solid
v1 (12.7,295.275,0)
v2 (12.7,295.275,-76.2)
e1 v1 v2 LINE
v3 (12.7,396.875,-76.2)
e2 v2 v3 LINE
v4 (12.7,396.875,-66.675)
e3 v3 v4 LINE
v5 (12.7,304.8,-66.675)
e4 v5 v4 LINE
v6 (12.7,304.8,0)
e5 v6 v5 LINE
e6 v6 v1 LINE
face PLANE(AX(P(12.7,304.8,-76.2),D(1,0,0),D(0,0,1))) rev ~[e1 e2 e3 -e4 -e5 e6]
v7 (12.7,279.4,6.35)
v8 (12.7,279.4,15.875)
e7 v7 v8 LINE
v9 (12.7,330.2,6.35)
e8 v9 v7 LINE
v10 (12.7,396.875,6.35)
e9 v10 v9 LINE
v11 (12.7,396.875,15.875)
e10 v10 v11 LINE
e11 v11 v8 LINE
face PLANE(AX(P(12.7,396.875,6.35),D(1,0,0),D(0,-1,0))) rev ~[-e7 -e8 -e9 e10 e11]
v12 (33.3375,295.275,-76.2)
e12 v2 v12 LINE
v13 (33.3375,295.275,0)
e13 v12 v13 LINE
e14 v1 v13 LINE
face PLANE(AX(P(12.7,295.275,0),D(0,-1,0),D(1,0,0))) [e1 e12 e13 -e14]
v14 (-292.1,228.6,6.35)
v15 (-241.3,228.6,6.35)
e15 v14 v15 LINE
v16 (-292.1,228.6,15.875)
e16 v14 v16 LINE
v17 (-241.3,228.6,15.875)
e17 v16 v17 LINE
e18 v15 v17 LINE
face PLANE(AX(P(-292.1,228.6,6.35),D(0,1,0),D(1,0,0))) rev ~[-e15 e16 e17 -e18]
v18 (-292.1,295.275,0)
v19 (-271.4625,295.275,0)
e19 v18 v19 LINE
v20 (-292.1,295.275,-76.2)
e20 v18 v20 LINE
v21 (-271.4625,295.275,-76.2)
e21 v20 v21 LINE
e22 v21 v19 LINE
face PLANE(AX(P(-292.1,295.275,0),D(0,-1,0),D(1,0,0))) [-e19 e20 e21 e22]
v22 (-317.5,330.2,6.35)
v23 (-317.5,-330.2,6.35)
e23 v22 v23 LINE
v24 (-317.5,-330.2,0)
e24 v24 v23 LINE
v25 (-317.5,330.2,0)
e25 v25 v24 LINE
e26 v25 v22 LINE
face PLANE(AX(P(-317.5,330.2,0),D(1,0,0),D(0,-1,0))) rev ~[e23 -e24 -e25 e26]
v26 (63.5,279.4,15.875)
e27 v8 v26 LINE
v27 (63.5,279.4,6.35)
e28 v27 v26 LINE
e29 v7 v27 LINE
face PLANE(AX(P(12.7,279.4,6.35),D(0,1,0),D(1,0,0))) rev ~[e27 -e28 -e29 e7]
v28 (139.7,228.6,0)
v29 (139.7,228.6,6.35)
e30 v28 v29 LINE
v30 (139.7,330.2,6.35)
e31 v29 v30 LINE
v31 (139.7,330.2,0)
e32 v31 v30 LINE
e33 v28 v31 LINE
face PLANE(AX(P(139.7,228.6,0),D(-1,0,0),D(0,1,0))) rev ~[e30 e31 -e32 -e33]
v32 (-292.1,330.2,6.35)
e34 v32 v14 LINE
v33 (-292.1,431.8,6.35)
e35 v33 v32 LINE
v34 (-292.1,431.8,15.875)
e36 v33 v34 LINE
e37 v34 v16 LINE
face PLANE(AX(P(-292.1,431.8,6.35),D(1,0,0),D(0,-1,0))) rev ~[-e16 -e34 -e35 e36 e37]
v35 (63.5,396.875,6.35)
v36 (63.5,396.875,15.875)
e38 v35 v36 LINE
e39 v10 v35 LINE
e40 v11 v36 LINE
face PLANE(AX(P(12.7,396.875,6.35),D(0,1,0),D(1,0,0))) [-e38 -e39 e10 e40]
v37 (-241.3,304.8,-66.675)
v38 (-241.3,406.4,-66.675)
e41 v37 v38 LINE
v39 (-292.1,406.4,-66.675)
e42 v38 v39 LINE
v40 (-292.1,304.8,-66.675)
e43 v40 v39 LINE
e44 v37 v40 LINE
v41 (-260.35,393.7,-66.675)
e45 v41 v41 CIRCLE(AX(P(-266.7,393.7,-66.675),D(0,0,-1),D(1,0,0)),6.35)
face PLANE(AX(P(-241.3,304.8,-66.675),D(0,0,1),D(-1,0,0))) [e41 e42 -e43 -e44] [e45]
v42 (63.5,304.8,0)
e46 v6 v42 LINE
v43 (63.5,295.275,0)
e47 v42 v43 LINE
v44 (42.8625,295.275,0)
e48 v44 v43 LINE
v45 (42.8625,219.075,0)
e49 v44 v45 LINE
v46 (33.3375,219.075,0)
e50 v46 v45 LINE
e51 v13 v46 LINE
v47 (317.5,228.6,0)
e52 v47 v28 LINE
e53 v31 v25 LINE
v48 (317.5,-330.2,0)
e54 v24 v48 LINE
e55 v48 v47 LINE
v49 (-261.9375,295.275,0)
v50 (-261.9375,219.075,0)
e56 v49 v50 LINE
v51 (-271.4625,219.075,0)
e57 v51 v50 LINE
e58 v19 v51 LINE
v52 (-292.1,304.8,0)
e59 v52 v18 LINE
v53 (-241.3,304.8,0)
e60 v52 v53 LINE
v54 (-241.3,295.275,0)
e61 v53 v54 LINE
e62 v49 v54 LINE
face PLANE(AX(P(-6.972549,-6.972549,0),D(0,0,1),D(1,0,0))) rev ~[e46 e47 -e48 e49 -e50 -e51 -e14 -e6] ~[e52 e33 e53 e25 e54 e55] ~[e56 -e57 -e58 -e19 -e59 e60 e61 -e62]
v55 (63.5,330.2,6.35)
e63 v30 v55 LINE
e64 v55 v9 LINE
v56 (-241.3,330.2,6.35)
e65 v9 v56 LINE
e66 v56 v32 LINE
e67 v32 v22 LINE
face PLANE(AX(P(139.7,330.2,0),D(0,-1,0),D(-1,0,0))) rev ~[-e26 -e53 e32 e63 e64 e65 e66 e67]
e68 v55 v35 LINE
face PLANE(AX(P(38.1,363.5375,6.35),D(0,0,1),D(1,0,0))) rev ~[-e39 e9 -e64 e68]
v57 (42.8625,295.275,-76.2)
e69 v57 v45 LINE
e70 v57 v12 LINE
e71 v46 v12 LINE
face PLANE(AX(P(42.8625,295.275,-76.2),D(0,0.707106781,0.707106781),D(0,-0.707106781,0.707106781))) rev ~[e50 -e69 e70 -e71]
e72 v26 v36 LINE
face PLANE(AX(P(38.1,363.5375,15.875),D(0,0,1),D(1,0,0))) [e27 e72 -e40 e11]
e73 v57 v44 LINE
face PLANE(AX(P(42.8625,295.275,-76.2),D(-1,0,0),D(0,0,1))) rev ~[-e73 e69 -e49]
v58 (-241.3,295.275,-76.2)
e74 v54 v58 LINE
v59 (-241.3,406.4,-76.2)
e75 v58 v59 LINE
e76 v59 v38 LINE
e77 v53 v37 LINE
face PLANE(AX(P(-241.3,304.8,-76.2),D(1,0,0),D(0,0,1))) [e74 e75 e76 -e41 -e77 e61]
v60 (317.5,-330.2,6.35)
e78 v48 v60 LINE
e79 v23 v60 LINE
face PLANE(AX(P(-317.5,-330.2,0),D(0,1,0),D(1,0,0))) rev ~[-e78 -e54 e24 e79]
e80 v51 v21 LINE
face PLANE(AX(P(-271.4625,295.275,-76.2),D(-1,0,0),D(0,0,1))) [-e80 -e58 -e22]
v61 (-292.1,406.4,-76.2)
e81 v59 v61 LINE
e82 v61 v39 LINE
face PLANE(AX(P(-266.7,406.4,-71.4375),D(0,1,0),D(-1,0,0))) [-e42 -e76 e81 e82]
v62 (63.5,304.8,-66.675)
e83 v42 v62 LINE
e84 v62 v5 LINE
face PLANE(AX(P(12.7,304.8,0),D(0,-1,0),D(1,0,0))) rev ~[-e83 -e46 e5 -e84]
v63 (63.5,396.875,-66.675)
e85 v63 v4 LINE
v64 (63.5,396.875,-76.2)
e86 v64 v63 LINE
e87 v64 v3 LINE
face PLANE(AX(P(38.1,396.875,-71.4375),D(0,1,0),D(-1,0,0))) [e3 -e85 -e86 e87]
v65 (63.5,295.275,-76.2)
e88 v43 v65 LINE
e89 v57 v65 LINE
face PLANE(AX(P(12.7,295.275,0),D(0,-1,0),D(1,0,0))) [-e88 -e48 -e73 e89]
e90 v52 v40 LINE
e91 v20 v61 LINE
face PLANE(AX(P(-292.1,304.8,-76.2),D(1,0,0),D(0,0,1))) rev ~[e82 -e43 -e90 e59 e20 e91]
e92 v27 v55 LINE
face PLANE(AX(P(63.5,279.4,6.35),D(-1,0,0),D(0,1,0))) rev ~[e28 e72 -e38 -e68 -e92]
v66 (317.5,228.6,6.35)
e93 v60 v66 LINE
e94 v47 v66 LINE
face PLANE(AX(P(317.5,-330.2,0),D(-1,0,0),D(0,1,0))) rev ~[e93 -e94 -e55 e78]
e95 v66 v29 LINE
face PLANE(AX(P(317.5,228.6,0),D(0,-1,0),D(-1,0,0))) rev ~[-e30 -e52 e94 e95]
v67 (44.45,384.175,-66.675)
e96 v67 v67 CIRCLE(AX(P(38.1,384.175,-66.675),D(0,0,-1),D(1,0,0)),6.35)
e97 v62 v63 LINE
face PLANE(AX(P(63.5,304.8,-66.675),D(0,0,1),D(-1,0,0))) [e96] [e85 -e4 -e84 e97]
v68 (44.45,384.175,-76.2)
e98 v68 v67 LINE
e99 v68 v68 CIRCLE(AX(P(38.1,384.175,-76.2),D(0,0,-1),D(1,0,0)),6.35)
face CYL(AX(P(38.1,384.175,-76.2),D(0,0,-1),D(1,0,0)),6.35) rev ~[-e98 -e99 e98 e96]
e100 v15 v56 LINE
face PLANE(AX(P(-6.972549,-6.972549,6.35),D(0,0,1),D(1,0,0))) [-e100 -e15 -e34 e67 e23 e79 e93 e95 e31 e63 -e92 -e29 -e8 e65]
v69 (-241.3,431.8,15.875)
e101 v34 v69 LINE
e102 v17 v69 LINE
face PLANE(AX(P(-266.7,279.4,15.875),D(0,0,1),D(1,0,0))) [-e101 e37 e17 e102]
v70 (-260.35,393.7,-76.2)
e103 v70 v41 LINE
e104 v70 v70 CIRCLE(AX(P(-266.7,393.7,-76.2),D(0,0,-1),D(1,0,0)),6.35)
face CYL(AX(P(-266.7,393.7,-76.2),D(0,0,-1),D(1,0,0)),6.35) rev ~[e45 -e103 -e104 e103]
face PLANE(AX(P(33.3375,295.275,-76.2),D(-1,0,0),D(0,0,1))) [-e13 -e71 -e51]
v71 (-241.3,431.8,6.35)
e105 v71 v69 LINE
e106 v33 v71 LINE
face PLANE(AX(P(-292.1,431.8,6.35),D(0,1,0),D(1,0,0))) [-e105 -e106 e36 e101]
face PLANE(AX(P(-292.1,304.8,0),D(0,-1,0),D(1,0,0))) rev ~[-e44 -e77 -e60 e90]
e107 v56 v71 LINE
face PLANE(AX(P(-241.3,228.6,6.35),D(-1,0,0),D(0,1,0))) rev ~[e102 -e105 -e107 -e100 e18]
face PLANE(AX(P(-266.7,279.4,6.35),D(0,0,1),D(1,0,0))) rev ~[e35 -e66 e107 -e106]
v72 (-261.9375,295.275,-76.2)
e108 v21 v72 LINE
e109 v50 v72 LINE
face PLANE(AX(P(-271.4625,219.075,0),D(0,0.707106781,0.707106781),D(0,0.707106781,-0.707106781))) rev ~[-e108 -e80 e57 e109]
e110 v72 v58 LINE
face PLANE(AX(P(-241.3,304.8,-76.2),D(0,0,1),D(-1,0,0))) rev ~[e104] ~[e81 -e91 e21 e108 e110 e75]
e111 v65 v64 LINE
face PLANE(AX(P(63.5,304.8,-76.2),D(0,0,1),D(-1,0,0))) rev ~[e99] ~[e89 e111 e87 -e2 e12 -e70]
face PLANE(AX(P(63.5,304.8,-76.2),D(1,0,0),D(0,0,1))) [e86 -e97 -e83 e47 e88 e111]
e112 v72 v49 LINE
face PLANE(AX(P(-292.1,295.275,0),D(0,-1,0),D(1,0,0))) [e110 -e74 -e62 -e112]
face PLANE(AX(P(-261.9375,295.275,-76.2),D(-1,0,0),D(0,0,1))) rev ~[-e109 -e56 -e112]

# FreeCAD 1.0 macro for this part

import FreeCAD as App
import Part
import Sketcher
from FreeCAD import Vector
Q = App.Units.Quantity

doc = App.newDocument("Part")
body = doc.addObject("PartDesign::Body", "Body")

sketch1 = doc.addObject("Sketcher::SketchObject", "Sketch")
body.addObject(sketch1)
sketch1.AttachmentSupport = (doc.XY_Plane, [""])
sketch1.MapMode = "FlatFace"
sketch1.addGeometry([
    Part.LineSegment(Vector(-318, -330, 0), Vector(318, -330, 0)),
    Part.LineSegment(Vector(318, -330, 0), Vector(318, 229, 0)),
    Part.LineSegment(Vector(318, 229, 0), Vector(140, 229, 0)),
    Part.LineSegment(Vector(140, 229, 0), Vector(140, 330, 0)),
    Part.LineSegment(Vector(140, 330, 0), Vector(-318, 330, 0)),
    Part.LineSegment(Vector(-318, 330, 0), Vector(-318, -330, 0)),
], False)
sketch1.addConstraint([
    Sketcher.Constraint("Coincident", 0, 2, 1, 1),
    Sketcher.Constraint("Coincident", 1, 2, 2, 1),
    Sketcher.Constraint("Coincident", 2, 2, 3, 1),
    Sketcher.Constraint("Coincident", 3, 2, 4, 1),
    Sketcher.Constraint("Coincident", 4, 2, 5, 1),
    Sketcher.Constraint("Coincident", 5, 2, 0, 1),
    Sketcher.Constraint("Horizontal", 0),
    Sketcher.Constraint("Vertical", 1),
    Sketcher.Constraint("Horizontal", 2),
    Sketcher.Constraint("Vertical", 3),
    Sketcher.Constraint("Horizontal", 4),
    Sketcher.Constraint("Vertical", 5),
    Sketcher.Constraint("Symmetric", 0, 2, 4, 2, -1, 1),
    Sketcher.Constraint("DistanceX", 0, 1, 0, 2, Q("25 in")),
    Sketcher.Constraint("DistanceX", 2, 2, 2, 1, Q("7 in")),
    Sketcher.Constraint("DistanceY", 1, 1, 1, 2, Q("22 in")),
    Sketcher.Constraint("DistanceY", 3, 1, 3, 2, Q("4 in")),
])
pad1 = doc.addObject("PartDesign::Pad", "Pad")
body.addObject(pad1)
pad1.Profile = sketch1
pad1.Length = Q("0.25 in")

sketch2 = doc.addObject("Sketcher::SketchObject", "Sketch001")
body.addObject(sketch2)
sketch2.AttachmentSupport = (doc.XY_Plane, [""])
sketch2.MapMode = "FlatFace"
sketch2.AttachmentOffset = App.Placement(Vector(0, 0, 0.25 * 25.4), App.Rotation())
sketch2.addGeometry([
    Part.LineSegment(Vector(-292, 229, 0), Vector(-241, 229, 0)),
    Part.LineSegment(Vector(-241, 229, 0), Vector(-241, 432, 0)),
    Part.LineSegment(Vector(-241, 432, 0), Vector(-292, 432, 0)),
    Part.LineSegment(Vector(-292, 432, 0), Vector(-292, 229, 0)),
], False)
sketch2.addConstraint([
    Sketcher.Constraint("Coincident", 0, 2, 1, 1),
    Sketcher.Constraint("Coincident", 1, 2, 2, 1),
    Sketcher.Constraint("Coincident", 2, 2, 3, 1),
    Sketcher.Constraint("Coincident", 3, 2, 0, 1),
    Sketcher.Constraint("Horizontal", 0),
    Sketcher.Constraint("Vertical", 1),
    Sketcher.Constraint("Horizontal", 2),
    Sketcher.Constraint("Vertical", 3),
    Sketcher.Constraint("DistanceX", 0, 1, 0, 2, Q("2 in")),
    Sketcher.Constraint("DistanceY", 1, 1, 1, 2, Q("8 in")),
    Sketcher.Constraint("DistanceY", -1, 1, 0, 2, Q("9 in")),
    Sketcher.Constraint("DistanceX", 0, 2, -1, 1, Q("9.5 in")),
])
pad2 = doc.addObject("PartDesign::Pad", "Pad001")
body.addObject(pad2)
pad2.Profile = sketch2
pad2.Length = Q("0.375 in")

sketch3 = doc.addObject("Sketcher::SketchObject", "Sketch002")
body.addObject(sketch3)
sketch3.AttachmentSupport = (doc.XY_Plane, [""])
sketch3.MapMode = "FlatFace"
sketch3.addGeometry([
    Part.LineSegment(Vector(13, 295, 0), Vector(13, 305, 0)),
    Part.LineSegment(Vector(13, 305, 0), Vector(64, 305, 0)),
    Part.LineSegment(Vector(64, 305, 0), Vector(64, 295, 0)),
    Part.LineSegment(Vector(64, 295, 0), Vector(13, 295, 0)),
], False)
sketch3.addConstraint([
    Sketcher.Constraint("Coincident", 0, 2, 1, 1),
    Sketcher.Constraint("Coincident", 1, 2, 2, 1),
    Sketcher.Constraint("Coincident", 2, 2, 3, 1),
    Sketcher.Constraint("Coincident", 3, 2, 0, 1),
    Sketcher.Constraint("Vertical", 0),
    Sketcher.Constraint("Horizontal", 1),
    Sketcher.Constraint("Vertical", 2),
    Sketcher.Constraint("Horizontal", 3),
    Sketcher.Constraint("DistanceX", 1, 1, 1, 2, Q("2 in")),
    Sketcher.Constraint("DistanceY", -1, 1, 0, 2, Q("12 in")),
    Sketcher.Constraint("DistanceX", -1, 1, 0, 2, Q("0.5 in")),
    Sketcher.Constraint("DistanceY", 0, 1, 0, 2, Q("0.375 in")),
])
pad3 = doc.addObject("PartDesign::Pad", "Pad002")
body.addObject(pad3)
pad3.Profile = sketch3
pad3.Length = Q("3 in")
pad3.Reversed = True

sketch4 = doc.addObject("Sketcher::SketchObject", "Sketch003")
body.addObject(sketch4)
sketch4.AttachmentSupport = (doc.XZ_Plane, [""])
sketch4.MapMode = "FlatFace"
sketch4.AttachmentOffset = App.Placement(Vector(0, 0, -12 * 25.4), App.Rotation())
sketch4.addGeometry([
    Part.LineSegment(Vector(64, -67, 0), Vector(64, -76, 0)),
    Part.LineSegment(Vector(64, -76, 0), Vector(13, -76, 0)),
    Part.LineSegment(Vector(13, -76, 0), Vector(13, -67, 0)),
    Part.LineSegment(Vector(13, -67, 0), Vector(64, -67, 0)),
], False)
sketch4.addConstraint([
    Sketcher.Constraint("Coincident", 0, 2, 1, 1),
    Sketcher.Constraint("Coincident", 1, 2, 2, 1),
    Sketcher.Constraint("Coincident", 2, 2, 3, 1),
    Sketcher.Constraint("Coincident", 3, 2, 0, 1),
    Sketcher.Constraint("Vertical", 0),
    Sketcher.Constraint("Horizontal", 1),
    Sketcher.Constraint("Vertical", 2),
    Sketcher.Constraint("Horizontal", 3),
    Sketcher.Constraint("DistanceX", 1, 2, 1, 1, Q("2 in")),
    Sketcher.Constraint("DistanceY", 0, 2, -1, 1, Q("3 in")),
    Sketcher.Constraint("DistanceX", -1, 1, 0, 2, Q("2.5 in")),
    Sketcher.Constraint("DistanceY", 0, 2, 0, 1, Q("0.375 in")),
])
pad4 = doc.addObject("PartDesign::Pad", "Pad003")
body.addObject(pad4)
pad4.Profile = sketch4
pad4.Length = Q("3.625 in")
pad4.Reversed = True

sketch5 = doc.addObject("Sketcher::SketchObject", "Sketch004")
body.addObject(sketch5)
sketch5.AttachmentSupport = (doc.XY_Plane, [""])
sketch5.MapMode = "FlatFace"
sketch5.AttachmentOffset = App.Placement(Vector(0, 0, -3 * 25.4), App.Rotation())
sketch5.addGeometry(Part.Circle(Vector(38, 384, 0), Vector(0, 0, 1), 6), False)
sketch5.addConstraint([
    Sketcher.Constraint("Diameter", 0, Q("0.5 in")),
    Sketcher.Constraint("DistanceX", -1, 1, 0, 3, Q("1.5 in")),
    Sketcher.Constraint("DistanceY", -1, 1, 0, 3, Q("15.125 in")),
])
pocket1 = doc.addObject("PartDesign::Pocket", "Pocket")
body.addObject(pocket1)
pocket1.Profile = sketch5
pocket1.Length = Q("1 in")
pocket1.Reversed = True

sketch6 = doc.addObject("Sketcher::SketchObject", "Sketch005")
body.addObject(sketch6)
sketch6.AttachmentSupport = (doc.XY_Plane, [""])
sketch6.MapMode = "FlatFace"
sketch6.AttachmentOffset = App.Placement(Vector(0, 0, 0.25 * 25.4), App.Rotation())
sketch6.addGeometry([
    Part.LineSegment(Vector(13, 397, 0), Vector(13, 279, 0)),
    Part.LineSegment(Vector(13, 279, 0), Vector(64, 279, 0)),
    Part.LineSegment(Vector(64, 279, 0), Vector(64, 397, 0)),
    Part.LineSegment(Vector(64, 397, 0), Vector(13, 397, 0)),
], False)
sketch6.addConstraint([
    Sketcher.Constraint("Coincident", 0, 2, 1, 1),
    Sketcher.Constraint("Coincident", 1, 2, 2, 1),
    Sketcher.Constraint("Coincident", 2, 2, 3, 1),
    Sketcher.Constraint("Coincident", 3, 2, 0, 1),
    Sketcher.Constraint("Vertical", 0),
    Sketcher.Constraint("Horizontal", 1),
    Sketcher.Constraint("Vertical", 2),
    Sketcher.Constraint("Horizontal", 3),
    Sketcher.Constraint("DistanceX", 1, 1, 1, 2, Q("2 in")),
    Sketcher.Constraint("DistanceY", -1, 1, 0, 2, Q("11 in")),
    Sketcher.Constraint("DistanceX", -1, 1, 0, 2, Q("0.5 in")),
    Sketcher.Constraint("DistanceY", 0, 2, 0, 1, Q("4.625 in")),
])
pad5 = doc.addObject("PartDesign::Pad", "Pad004")
body.addObject(pad5)
pad5.Profile = sketch6
pad5.Length = Q("0.375 in")

sketch7 = doc.addObject("Sketcher::SketchObject", "Sketch006")
body.addObject(sketch7)
sketch7.AttachmentSupport = (doc.XZ_Plane, [""])
sketch7.MapMode = "FlatFace"
sketch7.AttachmentOffset = App.Placement(Vector(0, 0, -11.625 * 25.4), App.Rotation())
sketch7.addGeometry([
    Part.LineSegment(Vector(33, 0, 0), Vector(33, -76, 0)),
    Part.LineSegment(Vector(33, -76, 0), Vector(43, -76, 0)),
    Part.LineSegment(Vector(43, -76, 0), Vector(43, 0, 0)),
    Part.LineSegment(Vector(43, 0, 0), Vector(33, 0, 0)),
], False)
sketch7.addConstraint([
    Sketcher.Constraint("Coincident", 0, 2, 1, 1),
    Sketcher.Constraint("Coincident", 1, 2, 2, 1),
    Sketcher.Constraint("Coincident", 2, 2, 3, 1),
    Sketcher.Constraint("Coincident", 3, 2, 0, 1),
    Sketcher.Constraint("Vertical", 0),
    Sketcher.Constraint("Horizontal", 1),
    Sketcher.Constraint("Vertical", 2),
    Sketcher.Constraint("Horizontal", 3),
    Sketcher.Constraint("PointOnObject", 2, 2, -1),
    Sketcher.Constraint("DistanceY", 0, 2, 0, 1, Q("3 in")),
    Sketcher.Constraint("DistanceX", 1, 1, 1, 2, Q("0.375 in")),
    Sketcher.Constraint("DistanceX", -1, 1, 0, 2, Q("1.3125 in")),
])
pad6 = doc.addObject("PartDesign::Pad", "Pad005")
body.addObject(pad6)
pad6.Profile = sketch7
pad6.Length = Q("3 in")

sketch8 = doc.addObject("Sketcher::SketchObject", "Sketch007")
body.addObject(sketch8)
sketch8.AttachmentSupport = (doc.YZ_Plane, [""])
sketch8.MapMode = "FlatFace"
sketch8.AttachmentOffset = App.Placement(Vector(0, 0, 1.6875 * 25.4), App.Rotation())
sketch8.addGeometry([
    Part.LineSegment(Vector(219, -76, 0), Vector(295, -76, 0)),
    Part.LineSegment(Vector(295, -76, 0), Vector(219, 0, 0)),
    Part.LineSegment(Vector(219, 0, 0), Vector(219, -76, 0)),
], False)
sketch8.addConstraint([
    Sketcher.Constraint("Coincident", 0, 2, 1, 1),
    Sketcher.Constraint("Coincident", 1, 2, 2, 1),
    Sketcher.Constraint("Coincident", 2, 2, 0, 1),
    Sketcher.Constraint("Horizontal", 0),
    Sketcher.Constraint("Vertical", 2),
    Sketcher.Constraint("PointOnObject", 1, 2, -1),
    Sketcher.Constraint("Equal", 0, 2),
    Sketcher.Constraint("DistanceX", 0, 1, 0, 2, Q("3 in")),
    Sketcher.Constraint("DistanceX", -1, 1, 0, 2, Q("11.625 in")),
])
pocket2 = doc.addObject("PartDesign::Pocket", "Pocket001")
body.addObject(pocket2)
pocket2.Profile = sketch8
pocket2.Length = Q("1 in")

sketch9 = doc.addObject("Sketcher::SketchObject", "Sketch008")
body.addObject(sketch9)
sketch9.AttachmentSupport = (doc.XY_Plane, [""])
sketch9.MapMode = "FlatFace"
sketch9.addGeometry([
    Part.LineSegment(Vector(-292, 295, 0), Vector(-292, 305, 0)),
    Part.LineSegment(Vector(-292, 305, 0), Vector(-241, 305, 0)),
    Part.LineSegment(Vector(-241, 305, 0), Vector(-241, 295, 0)),
    Part.LineSegment(Vector(-241, 295, 0), Vector(-292, 295, 0)),
], False)
sketch9.addConstraint([
    Sketcher.Constraint("Coincident", 0, 2, 1, 1),
    Sketcher.Constraint("Coincident", 1, 2, 2, 1),
    Sketcher.Constraint("Coincident", 2, 2, 3, 1),
    Sketcher.Constraint("Coincident", 3, 2, 0, 1),
    Sketcher.Constraint("Vertical", 0),
    Sketcher.Constraint("Horizontal", 1),
    Sketcher.Constraint("Vertical", 2),
    Sketcher.Constraint("Horizontal", 3),
    Sketcher.Constraint("DistanceX", 1, 1, 1, 2, Q("2 in")),
    Sketcher.Constraint("DistanceY", -1, 1, 0, 2, Q("12 in")),
    Sketcher.Constraint("DistanceX", 0, 2, -1, 1, Q("11.5 in")),
    Sketcher.Constraint("DistanceY", 0, 1, 0, 2, Q("0.375 in")),
])
pad7 = doc.addObject("PartDesign::Pad", "Pad006")
body.addObject(pad7)
pad7.Profile = sketch9
pad7.Length = Q("3 in")
pad7.Reversed = True

sketch10 = doc.addObject("Sketcher::SketchObject", "Sketch009")
body.addObject(sketch10)
sketch10.AttachmentSupport = (doc.XZ_Plane, [""])
sketch10.MapMode = "FlatFace"
sketch10.AttachmentOffset = App.Placement(Vector(0, 0, -12 * 25.4), App.Rotation())
sketch10.addGeometry([
    Part.LineSegment(Vector(-241, -67, 0), Vector(-241, -76, 0)),
    Part.LineSegment(Vector(-241, -76, 0), Vector(-292, -76, 0)),
    Part.LineSegment(Vector(-292, -76, 0), Vector(-292, -67, 0)),
    Part.LineSegment(Vector(-292, -67, 0), Vector(-241, -67, 0)),
], False)
sketch10.addConstraint([
    Sketcher.Constraint("Coincident", 0, 2, 1, 1),
    Sketcher.Constraint("Coincident", 1, 2, 2, 1),
    Sketcher.Constraint("Coincident", 2, 2, 3, 1),
    Sketcher.Constraint("Coincident", 3, 2, 0, 1),
    Sketcher.Constraint("Vertical", 0),
    Sketcher.Constraint("Horizontal", 1),
    Sketcher.Constraint("Vertical", 2),
    Sketcher.Constraint("Horizontal", 3),
    Sketcher.Constraint("DistanceX", 1, 2, 1, 1, Q("2 in")),
    Sketcher.Constraint("DistanceY", 0, 2, -1, 1, Q("3 in")),
    Sketcher.Constraint("DistanceX", 0, 2, -1, 1, Q("9.5 in")),
    Sketcher.Constraint("DistanceY", 0, 2, 0, 1, Q("0.375 in")),
])
pad8 = doc.addObject("PartDesign::Pad", "Pad007")
body.addObject(pad8)
pad8.Profile = sketch10
pad8.Length = Q("4 in")
pad8.Reversed = True

sketch11 = doc.addObject("Sketcher::SketchObject", "Sketch010")
body.addObject(sketch11)
sketch11.AttachmentSupport = (doc.XY_Plane, [""])
sketch11.MapMode = "FlatFace"
sketch11.AttachmentOffset = App.Placement(Vector(0, 0, -3 * 25.4), App.Rotation())
sketch11.addGeometry(Part.Circle(Vector(-267, 394, 0), Vector(0, 0, 1), 6), False)
sketch11.addConstraint([
    Sketcher.Constraint("Diameter", 0, Q("0.5 in")),
    Sketcher.Constraint("DistanceX", 0, 3, -1, 1, Q("10.5 in")),
    Sketcher.Constraint("DistanceY", -1, 1, 0, 3, Q("15.5 in")),
])
pocket3 = doc.addObject("PartDesign::Pocket", "Pocket002")
body.addObject(pocket3)
pocket3.Profile = sketch11
pocket3.Length = Q("1 in")
pocket3.Reversed = True

sketch12 = doc.addObject("Sketcher::SketchObject", "Sketch011")
body.addObject(sketch12)
sketch12.AttachmentSupport = (doc.XZ_Plane, [""])
sketch12.MapMode = "FlatFace"
sketch12.AttachmentOffset = App.Placement(Vector(0, 0, -11.625 * 25.4), App.Rotation())
sketch12.addGeometry([
    Part.LineSegment(Vector(-271, 0, 0), Vector(-271, -76, 0)),
    Part.LineSegment(Vector(-271, -76, 0), Vector(-262, -76, 0)),
    Part.LineSegment(Vector(-262, -76, 0), Vector(-262, 0, 0)),
    Part.LineSegment(Vector(-262, 0, 0), Vector(-271, 0, 0)),
], False)
sketch12.addConstraint([
    Sketcher.Constraint("Coincident", 0, 2, 1, 1),
    Sketcher.Constraint("Coincident", 1, 2, 2, 1),
    Sketcher.Constraint("Coincident", 2, 2, 3, 1),
    Sketcher.Constraint("Coincident", 3, 2, 0, 1),
    Sketcher.Constraint("Vertical", 0),
    Sketcher.Constraint("Horizontal", 1),
    Sketcher.Constraint("Vertical", 2),
    Sketcher.Constraint("Horizontal", 3),
    Sketcher.Constraint("PointOnObject", 2, 2, -1),
    Sketcher.Constraint("DistanceY", 0, 2, 0, 1, Q("3 in")),
    Sketcher.Constraint("DistanceX", 1, 1, 1, 2, Q("0.375 in")),
    Sketcher.Constraint("DistanceX", 0, 2, -1, 1, Q("10.6875 in")),
])
pad9 = doc.addObject("PartDesign::Pad", "Pad008")
body.addObject(pad9)
pad9.Profile = sketch12
pad9.Length = Q("3 in")

sketch13 = doc.addObject("Sketcher::SketchObject", "Sketch012")
body.addObject(sketch13)
sketch13.AttachmentSupport = (doc.YZ_Plane, [""])
sketch13.MapMode = "FlatFace"
sketch13.AttachmentOffset = App.Placement(Vector(0, 0, -10.6875 * 25.4), App.Rotation())
sketch13.addGeometry([
    Part.LineSegment(Vector(219, 0, 0), Vector(295, -76, 0)),
    Part.LineSegment(Vector(295, -76, 0), Vector(219, -76, 0)),
    Part.LineSegment(Vector(219, -76, 0), Vector(219, 0, 0)),
], False)
sketch13.addConstraint([
    Sketcher.Constraint("Coincident", 0, 2, 1, 1),
    Sketcher.Constraint("Coincident", 1, 2, 2, 1),
    Sketcher.Constraint("Coincident", 2, 2, 0, 1),
    Sketcher.Constraint("Horizontal", 1),
    Sketcher.Constraint("Vertical", 2),
    Sketcher.Constraint("PointOnObject", 2, 2, -1),
    Sketcher.Constraint("Equal", 1, 2),
    Sketcher.Constraint("DistanceX", 1, 2, 1, 1, Q("3 in")),
    Sketcher.Constraint("DistanceX", -1, 1, 0, 2, Q("11.625 in")),
])
pocket4 = doc.addObject("PartDesign::Pocket", "Pocket003")
body.addObject(pocket4)
pocket4.Profile = sketch13
pocket4.Length = Q("1 in")
pocket4.Reversed = True

doc.recompute()
